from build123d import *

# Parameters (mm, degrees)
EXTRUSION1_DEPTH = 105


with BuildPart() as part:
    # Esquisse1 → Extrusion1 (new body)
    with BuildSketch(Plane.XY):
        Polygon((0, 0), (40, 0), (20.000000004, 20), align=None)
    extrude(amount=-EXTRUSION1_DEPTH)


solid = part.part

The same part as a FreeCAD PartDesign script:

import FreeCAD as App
import Part
import Sketcher

doc = App.newDocument("Part")
body = doc.addObject("PartDesign::Body", "Body")

sketch1 = body.newObject("Sketcher::SketchObject", "Sketch")
sketch1.AttachmentSupport = (doc.getObject("XY_Plane"), [""])
sketch1.MapMode = "FlatFace"
sketch1.addGeometry([
    Part.LineSegment(App.Vector(0, 0, 0), App.Vector(40, 0, 0)),
    Part.LineSegment(App.Vector(40, 0, 0), App.Vector(20, 20, 0)),
    Part.LineSegment(App.Vector(20, 20, 0), App.Vector(0, 0, 0)),
], False)
sketch1.addConstraint([
    Sketcher.Constraint("Coincident", 0, 2, 1, 1),
    Sketcher.Constraint("Coincident", 1, 2, 2, 1),
    Sketcher.Constraint("Coincident", 2, 2, 0, 1),
    Sketcher.Constraint("Horizontal", 0),
    Sketcher.Constraint("Coincident", 2, 2, -1, 1),
    Sketcher.Constraint("Perpendicular", 1, 2),
    Sketcher.Constraint("Equal", 1, 2),
    Sketcher.Constraint("DistanceX", 0, 1, 0, 2, 40.0),
])
pad1 = body.newObject("PartDesign::Pad", "Pad")
pad1.Profile = sketch1
pad1.Length = 105
pad1.Reversed = True

doc.recompute()
